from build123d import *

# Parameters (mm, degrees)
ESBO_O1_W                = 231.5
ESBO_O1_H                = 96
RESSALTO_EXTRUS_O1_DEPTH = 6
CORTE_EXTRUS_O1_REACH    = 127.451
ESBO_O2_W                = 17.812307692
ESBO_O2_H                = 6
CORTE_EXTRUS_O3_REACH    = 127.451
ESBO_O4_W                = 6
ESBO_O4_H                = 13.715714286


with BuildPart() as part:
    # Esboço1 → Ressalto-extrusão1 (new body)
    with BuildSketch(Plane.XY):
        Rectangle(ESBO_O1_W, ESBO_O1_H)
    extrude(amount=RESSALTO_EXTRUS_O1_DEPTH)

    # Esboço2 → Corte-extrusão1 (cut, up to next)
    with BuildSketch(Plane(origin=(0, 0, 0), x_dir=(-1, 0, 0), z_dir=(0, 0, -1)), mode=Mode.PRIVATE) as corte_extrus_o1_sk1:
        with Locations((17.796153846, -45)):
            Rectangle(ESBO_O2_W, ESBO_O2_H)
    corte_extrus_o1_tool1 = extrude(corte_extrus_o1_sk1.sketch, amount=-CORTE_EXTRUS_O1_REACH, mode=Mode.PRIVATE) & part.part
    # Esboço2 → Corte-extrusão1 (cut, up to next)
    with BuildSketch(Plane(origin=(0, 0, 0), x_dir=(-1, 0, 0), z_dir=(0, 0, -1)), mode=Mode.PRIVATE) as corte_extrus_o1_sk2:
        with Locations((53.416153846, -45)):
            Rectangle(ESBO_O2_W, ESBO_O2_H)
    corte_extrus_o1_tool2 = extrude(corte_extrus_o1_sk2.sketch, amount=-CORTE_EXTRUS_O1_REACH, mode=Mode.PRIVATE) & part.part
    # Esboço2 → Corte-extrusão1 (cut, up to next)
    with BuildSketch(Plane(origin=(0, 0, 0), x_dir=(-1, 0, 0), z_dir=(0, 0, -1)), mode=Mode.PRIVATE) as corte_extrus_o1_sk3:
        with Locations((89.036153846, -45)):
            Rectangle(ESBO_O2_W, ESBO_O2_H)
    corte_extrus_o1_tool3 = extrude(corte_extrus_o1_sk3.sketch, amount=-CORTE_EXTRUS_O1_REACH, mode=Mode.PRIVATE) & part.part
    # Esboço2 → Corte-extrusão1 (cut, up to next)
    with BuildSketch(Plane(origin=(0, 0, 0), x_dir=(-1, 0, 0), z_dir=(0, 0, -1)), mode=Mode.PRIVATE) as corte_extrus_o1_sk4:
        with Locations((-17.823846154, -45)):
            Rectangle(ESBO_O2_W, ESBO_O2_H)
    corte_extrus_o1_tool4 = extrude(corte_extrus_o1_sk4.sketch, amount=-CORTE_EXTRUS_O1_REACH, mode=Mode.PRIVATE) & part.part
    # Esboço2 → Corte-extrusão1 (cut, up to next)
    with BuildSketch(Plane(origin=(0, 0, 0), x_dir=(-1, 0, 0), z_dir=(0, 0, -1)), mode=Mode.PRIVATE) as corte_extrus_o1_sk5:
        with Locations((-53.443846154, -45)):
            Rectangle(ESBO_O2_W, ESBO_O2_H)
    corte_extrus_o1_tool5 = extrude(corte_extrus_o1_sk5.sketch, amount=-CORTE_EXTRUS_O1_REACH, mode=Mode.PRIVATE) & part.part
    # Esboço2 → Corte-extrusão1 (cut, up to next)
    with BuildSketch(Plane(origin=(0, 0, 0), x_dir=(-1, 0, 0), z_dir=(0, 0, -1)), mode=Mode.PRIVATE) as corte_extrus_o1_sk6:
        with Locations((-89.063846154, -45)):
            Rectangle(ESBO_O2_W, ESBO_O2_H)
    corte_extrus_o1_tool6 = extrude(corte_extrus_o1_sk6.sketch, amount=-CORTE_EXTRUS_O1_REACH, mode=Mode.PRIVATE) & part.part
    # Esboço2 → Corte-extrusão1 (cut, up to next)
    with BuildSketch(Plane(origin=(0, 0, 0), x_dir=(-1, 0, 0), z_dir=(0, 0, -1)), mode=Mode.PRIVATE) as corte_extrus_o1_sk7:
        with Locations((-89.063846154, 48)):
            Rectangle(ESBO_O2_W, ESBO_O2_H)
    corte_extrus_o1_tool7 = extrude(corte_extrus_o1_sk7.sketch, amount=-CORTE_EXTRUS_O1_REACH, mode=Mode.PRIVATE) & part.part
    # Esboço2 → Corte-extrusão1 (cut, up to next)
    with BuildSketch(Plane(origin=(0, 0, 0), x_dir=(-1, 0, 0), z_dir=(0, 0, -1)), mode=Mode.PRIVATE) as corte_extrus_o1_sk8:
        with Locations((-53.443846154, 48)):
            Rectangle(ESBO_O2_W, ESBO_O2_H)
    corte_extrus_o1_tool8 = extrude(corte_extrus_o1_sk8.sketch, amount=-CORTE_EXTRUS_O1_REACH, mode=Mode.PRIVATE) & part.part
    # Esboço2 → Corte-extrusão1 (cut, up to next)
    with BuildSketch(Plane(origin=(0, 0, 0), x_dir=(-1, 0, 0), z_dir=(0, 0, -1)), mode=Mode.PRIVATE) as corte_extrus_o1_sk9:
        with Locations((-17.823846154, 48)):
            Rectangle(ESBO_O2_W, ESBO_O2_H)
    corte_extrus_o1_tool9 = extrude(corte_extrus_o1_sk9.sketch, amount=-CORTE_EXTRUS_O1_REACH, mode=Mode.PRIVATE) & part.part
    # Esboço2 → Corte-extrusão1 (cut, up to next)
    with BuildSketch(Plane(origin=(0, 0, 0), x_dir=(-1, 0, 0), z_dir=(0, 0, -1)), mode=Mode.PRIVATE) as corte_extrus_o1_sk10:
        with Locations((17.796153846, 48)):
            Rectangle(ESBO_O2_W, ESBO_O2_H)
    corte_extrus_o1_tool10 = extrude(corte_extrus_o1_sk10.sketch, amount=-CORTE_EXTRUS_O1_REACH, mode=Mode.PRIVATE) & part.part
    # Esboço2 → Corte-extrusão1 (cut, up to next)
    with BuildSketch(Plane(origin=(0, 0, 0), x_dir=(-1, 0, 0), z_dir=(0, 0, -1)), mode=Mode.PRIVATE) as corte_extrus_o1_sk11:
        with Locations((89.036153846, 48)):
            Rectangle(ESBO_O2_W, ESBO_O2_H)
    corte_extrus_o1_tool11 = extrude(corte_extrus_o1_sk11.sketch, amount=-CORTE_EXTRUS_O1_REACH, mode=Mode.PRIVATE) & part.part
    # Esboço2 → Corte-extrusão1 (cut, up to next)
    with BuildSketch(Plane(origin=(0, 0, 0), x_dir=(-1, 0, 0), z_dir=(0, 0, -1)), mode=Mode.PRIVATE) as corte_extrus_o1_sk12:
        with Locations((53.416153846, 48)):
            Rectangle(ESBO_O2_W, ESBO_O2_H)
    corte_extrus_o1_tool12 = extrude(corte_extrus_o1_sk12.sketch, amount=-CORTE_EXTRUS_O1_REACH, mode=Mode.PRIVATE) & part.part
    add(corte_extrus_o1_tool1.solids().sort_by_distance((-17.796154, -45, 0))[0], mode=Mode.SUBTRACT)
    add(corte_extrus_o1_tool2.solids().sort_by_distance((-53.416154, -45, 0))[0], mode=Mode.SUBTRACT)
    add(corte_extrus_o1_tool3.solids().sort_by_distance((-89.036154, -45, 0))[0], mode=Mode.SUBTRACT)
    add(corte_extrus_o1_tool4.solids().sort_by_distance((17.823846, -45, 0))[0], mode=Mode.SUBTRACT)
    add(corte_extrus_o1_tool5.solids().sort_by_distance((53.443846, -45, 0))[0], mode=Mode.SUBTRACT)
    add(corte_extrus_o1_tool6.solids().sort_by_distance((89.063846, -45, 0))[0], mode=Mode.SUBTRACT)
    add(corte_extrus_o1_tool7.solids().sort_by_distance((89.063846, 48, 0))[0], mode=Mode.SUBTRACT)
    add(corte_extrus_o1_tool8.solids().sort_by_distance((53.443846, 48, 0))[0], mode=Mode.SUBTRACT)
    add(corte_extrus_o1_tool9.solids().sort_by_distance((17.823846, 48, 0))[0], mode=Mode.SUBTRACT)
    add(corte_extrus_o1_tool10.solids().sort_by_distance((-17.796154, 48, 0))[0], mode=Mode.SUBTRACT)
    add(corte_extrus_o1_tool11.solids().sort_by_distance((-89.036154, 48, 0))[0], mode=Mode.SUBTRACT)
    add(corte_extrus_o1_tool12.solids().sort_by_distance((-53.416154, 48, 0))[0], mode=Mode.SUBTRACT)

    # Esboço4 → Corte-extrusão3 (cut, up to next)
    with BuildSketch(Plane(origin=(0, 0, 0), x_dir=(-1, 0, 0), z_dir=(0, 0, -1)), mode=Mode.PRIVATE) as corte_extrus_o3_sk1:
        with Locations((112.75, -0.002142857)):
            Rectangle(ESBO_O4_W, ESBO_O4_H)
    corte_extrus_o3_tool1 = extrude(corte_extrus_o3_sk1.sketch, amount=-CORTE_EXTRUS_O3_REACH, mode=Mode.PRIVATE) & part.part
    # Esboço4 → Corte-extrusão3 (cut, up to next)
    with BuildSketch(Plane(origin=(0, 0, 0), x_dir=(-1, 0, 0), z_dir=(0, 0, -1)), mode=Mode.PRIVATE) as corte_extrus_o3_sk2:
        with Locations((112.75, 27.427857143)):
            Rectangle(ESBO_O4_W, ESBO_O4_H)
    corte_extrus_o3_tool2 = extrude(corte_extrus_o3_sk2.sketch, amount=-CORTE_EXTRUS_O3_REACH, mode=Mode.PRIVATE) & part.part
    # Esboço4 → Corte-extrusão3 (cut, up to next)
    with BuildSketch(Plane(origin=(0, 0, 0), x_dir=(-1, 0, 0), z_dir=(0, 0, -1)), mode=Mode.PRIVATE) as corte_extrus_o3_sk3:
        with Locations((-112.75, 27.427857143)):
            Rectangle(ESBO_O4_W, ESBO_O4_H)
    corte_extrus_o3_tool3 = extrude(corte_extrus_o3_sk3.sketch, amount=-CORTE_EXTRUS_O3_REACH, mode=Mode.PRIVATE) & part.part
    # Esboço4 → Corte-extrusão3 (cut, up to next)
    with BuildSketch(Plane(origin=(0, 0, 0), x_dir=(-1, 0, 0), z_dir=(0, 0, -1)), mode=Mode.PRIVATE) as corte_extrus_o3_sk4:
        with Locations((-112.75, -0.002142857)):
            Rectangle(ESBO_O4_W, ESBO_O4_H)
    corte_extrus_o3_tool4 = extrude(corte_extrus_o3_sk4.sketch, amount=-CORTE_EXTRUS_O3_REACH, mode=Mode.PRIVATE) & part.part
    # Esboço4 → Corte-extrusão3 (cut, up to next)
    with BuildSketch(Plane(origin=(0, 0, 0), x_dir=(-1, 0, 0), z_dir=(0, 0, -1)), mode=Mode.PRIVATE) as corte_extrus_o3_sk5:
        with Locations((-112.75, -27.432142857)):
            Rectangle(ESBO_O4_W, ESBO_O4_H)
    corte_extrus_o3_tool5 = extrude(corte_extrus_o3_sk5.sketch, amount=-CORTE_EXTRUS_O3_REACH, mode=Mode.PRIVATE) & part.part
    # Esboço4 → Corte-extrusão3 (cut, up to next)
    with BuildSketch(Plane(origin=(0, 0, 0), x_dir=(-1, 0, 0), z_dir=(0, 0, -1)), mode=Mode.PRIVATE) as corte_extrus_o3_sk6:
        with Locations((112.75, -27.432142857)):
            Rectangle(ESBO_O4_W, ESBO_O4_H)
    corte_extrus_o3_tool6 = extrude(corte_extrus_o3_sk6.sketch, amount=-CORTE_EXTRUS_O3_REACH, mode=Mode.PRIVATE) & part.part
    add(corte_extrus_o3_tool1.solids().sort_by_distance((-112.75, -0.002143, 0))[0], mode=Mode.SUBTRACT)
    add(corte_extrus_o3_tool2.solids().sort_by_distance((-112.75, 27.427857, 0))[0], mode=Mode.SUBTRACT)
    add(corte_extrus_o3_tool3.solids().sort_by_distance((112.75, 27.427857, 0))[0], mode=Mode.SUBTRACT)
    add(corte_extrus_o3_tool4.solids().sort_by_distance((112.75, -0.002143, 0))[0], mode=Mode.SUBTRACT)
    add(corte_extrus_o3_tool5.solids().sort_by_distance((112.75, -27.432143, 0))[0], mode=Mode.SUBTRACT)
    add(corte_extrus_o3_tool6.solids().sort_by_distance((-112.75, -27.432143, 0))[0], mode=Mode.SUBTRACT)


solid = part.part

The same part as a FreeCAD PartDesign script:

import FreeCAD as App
import Part
import Sketcher
from FreeCAD import Vector
Q = App.Units.Quantity


def add_polygon(sketch, points):
    """Adds a closed chain of lines whose ends are joined by coincident constraints."""
    first, n = sketch.GeometryCount, len(points)
    for a, b in zip(points, points[1:] + points[:1]):
        sketch.addGeometry(Part.LineSegment(App.Vector(*a, 0), App.Vector(*b, 0)), False)
    for i in range(n):
        sketch.addConstraint(Sketcher.Constraint("Coincident", first + i, 2, first + (i + 1) % n, 1))

doc = App.newDocument("Part")
body = doc.addObject("PartDesign::Body", "Body")

sketch1 = body.newObject("Sketcher::SketchObject", "Sketch")
sketch1.AttachmentSupport = (doc.getObject("XY_Plane"), [""])
sketch1.MapMode = "FlatFace"
add_polygon(sketch1, [(-116, 48), (-116, -48), (116, -48), (116, 48)])
sketch1.addConstraint([
    Sketcher.Constraint("Vertical", 0),
    Sketcher.Constraint("Horizontal", 1),
    Sketcher.Constraint("Vertical", 2),
    Sketcher.Constraint("Horizontal", 3),
    Sketcher.Constraint("Symmetric", 0, 2, 2, 2, -1, 1),
    Sketcher.Constraint("DistanceY", 0, 2, 0, 1, Q("96 mm")),
    Sketcher.Constraint("DistanceX", 1, 1, 1, 2, Q("231.5 mm")),
])
pad1 = body.newObject("PartDesign::Pad", "Pad")
pad1.Profile = sketch1
pad1.Length = 6

sketch2 = body.newObject("Sketcher::SketchObject", "Sketch001")
sketch2.AttachmentSupport = (doc.getObject("XY_Plane"), [""])
sketch2.MapMode = "FlatFace"
add_polygon(sketch2, [(-9, -42), (-9, -48), (-27, -48), (-27, -42)])
sketch2.addConstraint([
    Sketcher.Constraint("Vertical", 0),
    Sketcher.Constraint("Horizontal", 1),
    Sketcher.Constraint("Vertical", 2),
    Sketcher.Constraint("Horizontal", 3),
    Sketcher.Constraint("DistanceY", 0, 2, 0, 1, Q("6 mm")),
    Sketcher.Constraint("DistanceY", 0, 2, -1, 1, Q("48 mm")),
    Sketcher.Constraint("DistanceX", 0, 2, -1, 1, Q("8.89 mm")),
    Sketcher.Constraint("DistanceX", 1, 2, 1, 1, Q("17.812308 mm")),
])
pocket1 = body.newObject("PartDesign::Pocket", "Pocket")
pocket1.Profile = sketch2
pocket1.Type = "UpToFirst"
pocket1.Reversed = True

sketch3 = body.newObject("Sketcher::SketchObject", "Sketch002")
sketch3.AttachmentSupport = (doc.getObject("XY_Plane"), [""])
sketch3.MapMode = "FlatFace"
add_polygon(sketch3, [(-45, -42), (-45, -48), (-62, -48), (-62, -42)])
sketch3.addConstraint([
    Sketcher.Constraint("Vertical", 0),
    Sketcher.Constraint("Horizontal", 1),
    Sketcher.Constraint("Vertical", 2),
    Sketcher.Constraint("Horizontal", 3),
    Sketcher.Constraint("DistanceY", 0, 2, 0, 1, Q("6 mm")),
    Sketcher.Constraint("DistanceY", 0, 2, -1, 1, Q("48 mm")),
    Sketcher.Constraint("DistanceX", 0, 2, -1, 1, Q("44.51 mm")),
    Sketcher.Constraint("DistanceX", 1, 2, 1, 1, Q("17.812308 mm")),
])
pocket2 = body.newObject("PartDesign::Pocket", "Pocket001")
pocket2.Profile = sketch3
pocket2.Type = "UpToFirst"
pocket2.Reversed = True

sketch4 = body.newObject("Sketcher::SketchObject", "Sketch003")
sketch4.AttachmentSupport = (doc.getObject("XY_Plane"), [""])
sketch4.MapMode = "FlatFace"
add_polygon(sketch4, [(-80, -42), (-80, -48), (-98, -48), (-98, -42)])
sketch4.addConstraint([
    Sketcher.Constraint("Vertical", 0),
    Sketcher.Constraint("Horizontal", 1),
    Sketcher.Constraint("Vertical", 2),
    Sketcher.Constraint("Horizontal", 3),
    Sketcher.Constraint("DistanceY", 0, 2, 0, 1, Q("6 mm")),
    Sketcher.Constraint("DistanceY", 0, 2, -1, 1, Q("48 mm")),
    Sketcher.Constraint("DistanceX", 0, 2, -1, 1, Q("80.13 mm")),
    Sketcher.Constraint("DistanceX", 1, 2, 1, 1, Q("17.812308 mm")),
])
pocket3 = body.newObject("PartDesign::Pocket", "Pocket002")
pocket3.Profile = sketch4
pocket3.Type = "UpToFirst"
pocket3.Reversed = True

sketch5 = body.newObject("Sketcher::SketchObject", "Sketch004")
sketch5.AttachmentSupport = (doc.getObject("XY_Plane"), [""])
sketch5.MapMode = "FlatFace"
add_polygon(sketch5, [(27, -42), (27, -48), (9, -48), (9, -42)])
sketch5.addConstraint([
    Sketcher.Constraint("Vertical", 0),
    Sketcher.Constraint("Horizontal", 1),
    Sketcher.Constraint("Vertical", 2),
    Sketcher.Constraint("Horizontal", 3),
    Sketcher.Constraint("DistanceY", 0, 2, 0, 1, Q("6 mm")),
    Sketcher.Constraint("DistanceY", 0, 2, -1, 1, Q("48 mm")),
    Sketcher.Constraint("DistanceX", -1, 1, 0, 2, Q("26.73 mm")),
    Sketcher.Constraint("DistanceX", 1, 2, 1, 1, Q("17.812308 mm")),
])
pocket4 = body.newObject("PartDesign::Pocket", "Pocket003")
pocket4.Profile = sketch5
pocket4.Type = "UpToFirst"
pocket4.Reversed = True

sketch6 = body.newObject("Sketcher::SketchObject", "Sketch005")
sketch6.AttachmentSupport = (doc.getObject("XY_Plane"), [""])
sketch6.MapMode = "FlatFace"
add_polygon(sketch6, [(62, -42), (62, -48), (45, -48), (45, -42)])
sketch6.addConstraint([
    Sketcher.Constraint("Vertical", 0),
    Sketcher.Constraint("Horizontal", 1),
    Sketcher.Constraint("Vertical", 2),
    Sketcher.Constraint("Horizontal", 3),
    Sketcher.Constraint("DistanceY", 0, 2, 0, 1, Q("6 mm")),
    Sketcher.Constraint("DistanceY", 0, 2, -1, 1, Q("48 mm")),
    Sketcher.Constraint("DistanceX", -1, 1, 0, 2, Q("62.35 mm")),
    Sketcher.Constraint("DistanceX", 1, 2, 1, 1, Q("17.812308 mm")),
])
pocket5 = body.newObject("PartDesign::Pocket", "Pocket004")
pocket5.Profile = sketch6
pocket5.Type = "UpToFirst"
pocket5.Reversed = True

sketch7 = body.newObject("Sketcher::SketchObject", "Sketch006")
sketch7.AttachmentSupport = (doc.getObject("XY_Plane"), [""])
sketch7.MapMode = "FlatFace"
add_polygon(sketch7, [(98, -42), (98, -48), (80, -48), (80, -42)])
sketch7.addConstraint([
    Sketcher.Constraint("Vertical", 0),
    Sketcher.Constraint("Horizontal", 1),
    Sketcher.Constraint("Vertical", 2),
    Sketcher.Constraint("Horizontal", 3),
    Sketcher.Constraint("DistanceY", 0, 2, 0, 1, Q("6 mm")),
    Sketcher.Constraint("DistanceY", 0, 2, -1, 1, Q("48 mm")),
    Sketcher.Constraint("DistanceX", -1, 1, 0, 2, Q("97.97 mm")),
    Sketcher.Constraint("DistanceX", 1, 2, 1, 1, Q("17.812308 mm")),
])
pocket6 = body.newObject("PartDesign::Pocket", "Pocket005")
pocket6.Profile = sketch7
pocket6.Type = "UpToFirst"
pocket6.Reversed = True

sketch8 = body.newObject("Sketcher::SketchObject", "Sketch007")
sketch8.AttachmentSupport = (doc.getObject("XY_Plane"), [""])
sketch8.MapMode = "FlatFace"
add_polygon(sketch8, [(98, 51), (98, 45), (80, 45), (80, 51)])
sketch8.addConstraint([
    Sketcher.Constraint("Vertical", 0),
    Sketcher.Constraint("Horizontal", 1),
    Sketcher.Constraint("Vertical", 2),
    Sketcher.Constraint("Horizontal", 3),
    Sketcher.Constraint("DistanceY", 0, 2, 0, 1, Q("6 mm")),
    Sketcher.Constraint("DistanceY", -1, 1, 0, 2, Q("45 mm")),
    Sketcher.Constraint("DistanceX", -1, 1, 0, 2, Q("97.97 mm")),
    Sketcher.Constraint("DistanceX", 1, 2, 1, 1, Q("17.812308 mm")),
])
pocket7 = body.newObject("PartDesign::Pocket", "Pocket006")
pocket7.Profile = sketch8
pocket7.Type = "UpToFirst"
pocket7.Reversed = True

sketch9 = body.newObject("Sketcher::SketchObject", "Sketch008")
sketch9.AttachmentSupport = (doc.getObject("XY_Plane"), [""])
sketch9.MapMode = "FlatFace"
add_polygon(sketch9, [(62, 51), (62, 45), (45, 45), (45, 51)])
sketch9.addConstraint([
    Sketcher.Constraint("Vertical", 0),
    Sketcher.Constraint("Horizontal", 1),
    Sketcher.Constraint("Vertical", 2),
    Sketcher.Constraint("Horizontal", 3),
    Sketcher.Constraint("DistanceY", 0, 2, 0, 1, Q("6 mm")),
    Sketcher.Constraint("DistanceY", -1, 1, 0, 2, Q("45 mm")),
    Sketcher.Constraint("DistanceX", -1, 1, 0, 2, Q("62.35 mm")),
    Sketcher.Constraint("DistanceX", 1, 2, 1, 1, Q("17.812308 mm")),
])
pocket8 = body.newObject("PartDesign::Pocket", "Pocket007")
pocket8.Profile = sketch9
pocket8.Type = "UpToFirst"
pocket8.Reversed = True

sketch10 = body.newObject("Sketcher::SketchObject", "Sketch009")
sketch10.AttachmentSupport = (doc.getObject("XY_Plane"), [""])
sketch10.MapMode = "FlatFace"
add_polygon(sketch10, [(27, 51), (27, 45), (9, 45), (9, 51)])
sketch10.addConstraint([
    Sketcher.Constraint("Vertical", 0),
    Sketcher.Constraint("Horizontal", 1),
    Sketcher.Constraint("Vertical", 2),
    Sketcher.Constraint("Horizontal", 3),
    Sketcher.Constraint("DistanceY", 0, 2, 0, 1, Q("6 mm")),
    Sketcher.Constraint("DistanceY", -1, 1, 0, 2, Q("45 mm")),
    Sketcher.Constraint("DistanceX", -1, 1, 0, 2, Q("26.73 mm")),
    Sketcher.Constraint("DistanceX", 1, 2, 1, 1, Q("17.812308 mm")),
])
pocket9 = body.newObject("PartDesign::Pocket", "Pocket008")
pocket9.Profile = sketch10
pocket9.Type = "UpToFirst"
pocket9.Reversed = True

sketch11 = body.newObject("Sketcher::SketchObject", "Sketch010")
sketch11.AttachmentSupport = (doc.getObject("XY_Plane"), [""])
sketch11.MapMode = "FlatFace"
add_polygon(sketch11, [(-9, 51), (-9, 45), (-27, 45), (-27, 51)])
sketch11.addConstraint([
    Sketcher.Constraint("Vertical", 0),
    Sketcher.Constraint("Horizontal", 1),
    Sketcher.Constraint("Vertical", 2),
    Sketcher.Constraint("Horizontal", 3),
    Sketcher.Constraint("DistanceY", 0, 2, 0, 1, Q("6 mm")),
    Sketcher.Constraint("DistanceY", -1, 1, 0, 2, Q("45 mm")),
    Sketcher.Constraint("DistanceX", 0, 2, -1, 1, Q("8.89 mm")),
    Sketcher.Constraint("DistanceX", 1, 2, 1, 1, Q("17.812308 mm")),
])
pocket10 = body.newObject("PartDesign::Pocket", "Pocket009")
pocket10.Profile = sketch11
pocket10.Type = "UpToFirst"
pocket10.Reversed = True

sketch12 = body.newObject("Sketcher::SketchObject", "Sketch011")
sketch12.AttachmentSupport = (doc.getObject("XY_Plane"), [""])
sketch12.MapMode = "FlatFace"
add_polygon(sketch12, [(-80, 51), (-80, 45), (-98, 45), (-98, 51)])
sketch12.addConstraint([
    Sketcher.Constraint("Vertical", 0),
    Sketcher.Constraint("Horizontal", 1),
    Sketcher.Constraint("Vertical", 2),
    Sketcher.Constraint("Horizontal", 3),
    Sketcher.Constraint("DistanceY", 0, 2, 0, 1, Q("6 mm")),
    Sketcher.Constraint("DistanceY", -1, 1, 0, 2, Q("45 mm")),
    Sketcher.Constraint("DistanceX", 0, 2, -1, 1, Q("80.13 mm")),
    Sketcher.Constraint("DistanceX", 1, 2, 1, 1, Q("17.812308 mm")),
])
pocket11 = body.newObject("PartDesign::Pocket", "Pocket010")
pocket11.Profile = sketch12
pocket11.Type = "UpToFirst"
pocket11.Reversed = True

sketch13 = body.newObject("Sketcher::SketchObject", "Sketch012")
sketch13.AttachmentSupport = (doc.getObject("XY_Plane"), [""])
sketch13.MapMode = "FlatFace"
add_polygon(sketch13, [(-45, 51), (-45, 45), (-62, 45), (-62, 51)])
sketch13.addConstraint([
    Sketcher.Constraint("Vertical", 0),
    Sketcher.Constraint("Horizontal", 1),
    Sketcher.Constraint("Vertical", 2),
    Sketcher.Constraint("Horizontal", 3),
    Sketcher.Constraint("DistanceY", 0, 2, 0, 1, Q("6 mm")),
    Sketcher.Constraint("DistanceY", -1, 1, 0, 2, Q("45 mm")),
    Sketcher.Constraint("DistanceX", 0, 2, -1, 1, Q("44.51 mm")),
    Sketcher.Constraint("DistanceX", 1, 2, 1, 1, Q("17.812308 mm")),
])
pocket12 = body.newObject("PartDesign::Pocket", "Pocket011")
pocket12.Profile = sketch13
pocket12.Type = "UpToFirst"
pocket12.Reversed = True

sketch14 = body.newObject("Sketcher::SketchObject", "Sketch013")
sketch14.AttachmentSupport = (doc.getObject("XY_Plane"), [""])
sketch14.MapMode = "FlatFace"
add_polygon(sketch14, [(-110, 7), (-110, -7), (-116, -7), (-116, 7)])
sketch14.addConstraint([
    Sketcher.Constraint("Vertical", 0),
    Sketcher.Constraint("Horizontal", 1),
    Sketcher.Constraint("Vertical", 2),
    Sketcher.Constraint("Horizontal", 3),
    Sketcher.Constraint("DistanceX", 1, 2, 1, 1, Q("6 mm")),
    Sketcher.Constraint("DistanceX", 0, 2, -1, 1, Q("109.75 mm")),
    Sketcher.Constraint("DistanceY", 0, 2, -1, 1, Q("6.86 mm")),
    Sketcher.Constraint("DistanceY", 0, 2, 0, 1, Q("13.715714 mm")),
])
pocket13 = body.newObject("PartDesign::Pocket", "Pocket012")
pocket13.Profile = sketch14
pocket13.Type = "UpToFirst"
pocket13.Reversed = True

sketch15 = body.newObject("Sketcher::SketchObject", "Sketch014")
sketch15.AttachmentSupport = (doc.getObject("XY_Plane"), [""])
sketch15.MapMode = "FlatFace"
add_polygon(sketch15, [(-110, 34), (-110, 21), (-116, 21), (-116, 34)])
sketch15.addConstraint([
    Sketcher.Constraint("Vertical", 0),
    Sketcher.Constraint("Horizontal", 1),
    Sketcher.Constraint("Vertical", 2),
    Sketcher.Constraint("Horizontal", 3),
    Sketcher.Constraint("DistanceX", 1, 2, 1, 1, Q("6 mm")),
    Sketcher.Constraint("DistanceX", 0, 2, -1, 1, Q("109.75 mm")),
    Sketcher.Constraint("DistanceY", -1, 1, 0, 2, Q("20.57 mm")),
    Sketcher.Constraint("DistanceY", 0, 2, 0, 1, Q("13.715714 mm")),
])
pocket14 = body.newObject("PartDesign::Pocket", "Pocket013")
pocket14.Profile = sketch15
pocket14.Type = "UpToFirst"
pocket14.Reversed = True

sketch16 = body.newObject("Sketcher::SketchObject", "Sketch015")
sketch16.AttachmentSupport = (doc.getObject("XY_Plane"), [""])
sketch16.MapMode = "FlatFace"
add_polygon(sketch16, [(116, 34), (116, 21), (110, 21), (110, 34)])
sketch16.addConstraint([
    Sketcher.Constraint("Vertical", 0),
    Sketcher.Constraint("Horizontal", 1),
    Sketcher.Constraint("Vertical", 2),
    Sketcher.Constraint("Horizontal", 3),
    Sketcher.Constraint("DistanceX", 1, 2, 1, 1, Q("6 mm")),
    Sketcher.Constraint("DistanceX", -1, 1, 0, 2, Q("115.75 mm")),
    Sketcher.Constraint("DistanceY", -1, 1, 0, 2, Q("20.57 mm")),
    Sketcher.Constraint("DistanceY", 0, 2, 0, 1, Q("13.715714 mm")),
])
pocket15 = body.newObject("PartDesign::Pocket", "Pocket014")
pocket15.Profile = sketch16
pocket15.Type = "UpToFirst"
pocket15.Reversed = True

sketch17 = body.newObject("Sketcher::SketchObject", "Sketch016")
sketch17.AttachmentSupport = (doc.getObject("XY_Plane"), [""])
sketch17.MapMode = "FlatFace"
add_polygon(sketch17, [(116, 7), (116, -7), (110, -7), (110, 7)])
sketch17.addConstraint([
    Sketcher.Constraint("Vertical", 0),
    Sketcher.Constraint("Horizontal", 1),
    Sketcher.Constraint("Vertical", 2),
    Sketcher.Constraint("Horizontal", 3),
    Sketcher.Constraint("DistanceX", 1, 2, 1, 1, Q("6 mm")),
    Sketcher.Constraint("DistanceX", -1, 1, 0, 2, Q("115.75 mm")),
    Sketcher.Constraint("DistanceY", 0, 2, -1, 1, Q("6.86 mm")),
    Sketcher.Constraint("DistanceY", 0, 2, 0, 1, Q("13.715714 mm")),
])
pocket16 = body.newObject("PartDesign::Pocket", "Pocket015")
pocket16.Profile = sketch17
pocket16.Type = "UpToFirst"
pocket16.Reversed = True

sketch18 = body.newObject("Sketcher::SketchObject", "Sketch017")
sketch18.AttachmentSupport = (doc.getObject("XY_Plane"), [""])
sketch18.MapMode = "FlatFace"
add_polygon(sketch18, [(116, -21), (116, -34), (110, -34), (110, -21)])
sketch18.addConstraint([
    Sketcher.Constraint("Vertical", 0),
    Sketcher.Constraint("Horizontal", 1),
    Sketcher.Constraint("Vertical", 2),
    Sketcher.Constraint("Horizontal", 3),
    Sketcher.Constraint("DistanceX", 1, 2, 1, 1, Q("6 mm")),
    Sketcher.Constraint("DistanceX", -1, 1, 0, 2, Q("115.75 mm")),
    Sketcher.Constraint("DistanceY", 0, 2, -1, 1, Q("34.29 mm")),
    Sketcher.Constraint("DistanceY", 0, 2, 0, 1, Q("13.715714 mm")),
])
pocket17 = body.newObject("PartDesign::Pocket", "Pocket016")
pocket17.Profile = sketch18
pocket17.Type = "UpToFirst"
pocket17.Reversed = True

sketch19 = body.newObject("Sketcher::SketchObject", "Sketch018")
sketch19.AttachmentSupport = (doc.getObject("XY_Plane"), [""])
sketch19.MapMode = "FlatFace"
add_polygon(sketch19, [(-110, -21), (-110, -34), (-116, -34), (-116, -21)])
sketch19.addConstraint([
    Sketcher.Constraint("Vertical", 0),
    Sketcher.Constraint("Horizontal", 1),
    Sketcher.Constraint("Vertical", 2),
    Sketcher.Constraint("Horizontal", 3),
    Sketcher.Constraint("DistanceX", 1, 2, 1, 1, Q("6 mm")),
    Sketcher.Constraint("DistanceX", 0, 2, -1, 1, Q("109.75 mm")),
    Sketcher.Constraint("DistanceY", 0, 2, -1, 1, Q("34.29 mm")),
    Sketcher.Constraint("DistanceY", 0, 2, 0, 1, Q("13.715714 mm")),
])
pocket18 = body.newObject("PartDesign::Pocket", "Pocket017")
pocket18.Profile = sketch19
pocket18.Type = "UpToFirst"
pocket18.Reversed = True

doc.recompute()
